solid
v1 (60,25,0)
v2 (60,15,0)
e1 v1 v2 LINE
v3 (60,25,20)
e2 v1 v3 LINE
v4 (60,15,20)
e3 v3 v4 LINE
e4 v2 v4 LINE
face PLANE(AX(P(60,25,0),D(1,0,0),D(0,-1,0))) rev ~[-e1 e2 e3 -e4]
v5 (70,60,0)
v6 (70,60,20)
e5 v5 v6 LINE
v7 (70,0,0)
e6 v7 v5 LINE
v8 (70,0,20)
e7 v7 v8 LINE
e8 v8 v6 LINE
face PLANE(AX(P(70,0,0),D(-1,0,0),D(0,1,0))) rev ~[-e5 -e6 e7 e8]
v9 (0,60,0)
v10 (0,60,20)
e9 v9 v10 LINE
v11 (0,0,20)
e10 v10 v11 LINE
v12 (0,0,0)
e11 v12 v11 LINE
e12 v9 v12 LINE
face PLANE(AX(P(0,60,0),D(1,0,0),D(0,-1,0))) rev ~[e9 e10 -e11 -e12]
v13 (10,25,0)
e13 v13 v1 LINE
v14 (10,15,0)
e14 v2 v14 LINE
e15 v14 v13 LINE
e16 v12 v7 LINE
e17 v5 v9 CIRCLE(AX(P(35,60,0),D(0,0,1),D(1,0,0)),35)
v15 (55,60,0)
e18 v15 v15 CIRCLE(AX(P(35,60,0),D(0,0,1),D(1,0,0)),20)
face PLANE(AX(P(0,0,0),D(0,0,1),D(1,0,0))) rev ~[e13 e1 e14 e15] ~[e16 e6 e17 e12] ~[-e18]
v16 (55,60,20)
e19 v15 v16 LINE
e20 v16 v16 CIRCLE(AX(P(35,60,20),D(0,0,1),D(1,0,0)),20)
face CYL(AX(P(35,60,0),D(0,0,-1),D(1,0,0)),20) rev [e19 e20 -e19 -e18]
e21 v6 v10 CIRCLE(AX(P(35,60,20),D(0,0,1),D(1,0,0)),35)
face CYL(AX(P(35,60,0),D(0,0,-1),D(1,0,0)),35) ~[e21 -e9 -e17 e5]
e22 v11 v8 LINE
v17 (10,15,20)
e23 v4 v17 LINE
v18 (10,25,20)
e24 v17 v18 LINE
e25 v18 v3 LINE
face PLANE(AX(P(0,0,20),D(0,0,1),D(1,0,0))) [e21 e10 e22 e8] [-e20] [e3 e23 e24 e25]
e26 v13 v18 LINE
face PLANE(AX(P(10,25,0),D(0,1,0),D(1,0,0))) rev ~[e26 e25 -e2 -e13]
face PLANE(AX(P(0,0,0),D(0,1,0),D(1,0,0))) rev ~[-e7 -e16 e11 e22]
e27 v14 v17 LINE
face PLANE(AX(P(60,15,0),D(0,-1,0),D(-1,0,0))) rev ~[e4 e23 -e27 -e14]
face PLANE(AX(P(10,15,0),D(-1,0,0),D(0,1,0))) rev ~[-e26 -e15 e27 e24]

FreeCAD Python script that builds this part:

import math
import FreeCAD as App
import Part
import Sketcher
from FreeCAD import Vector
Q = App.Units.Quantity


def add_polygon(sketch, points):
    """Adds a closed chain of lines whose ends are joined by coincident constraints."""
    first, n = sketch.GeometryCount, len(points)
    for a, b in zip(points, points[1:] + points[:1]):
        sketch.addGeometry(Part.LineSegment(App.Vector(*a, 0), App.Vector(*b, 0)), False)
    for i in range(n):
        sketch.addConstraint(Sketcher.Constraint("Coincident", first + i, 2, first + (i + 1) % n, 1))

doc = App.newDocument("Part")
body = doc.addObject("PartDesign::Body", "Body")

# Sketch on XY plane
sketch1 = body.newObject("Sketcher::SketchObject", "Sketch")
sketch1.AttachmentSupport = (doc.getObject("XY_Plane"), [""])
sketch1.MapMode = "FlatFace"
sketch1.addGeometry(Part.LineSegment(Vector(0, 60, 0), Vector(0, 0, 0)), False)  # 0
sketch1.addGeometry(Part.LineSegment(Vector(0, 0, 0), Vector(70, 0, 0)), False)  # 1
sketch1.addGeometry(Part.LineSegment(Vector(70, 0, 0), Vector(70, 60, 0)), False)  # 2
sketch1.addGeometry(Part.ArcOfCircle(Part.Circle(Vector(35, 60, 0), Vector(0, 0, 1), 35), math.radians(0), math.radians(180)), False)  # 3
add_polygon(sketch1, [(10, 15), (10, 25), (60, 25), (60, 15)])  # lines 4-7
sketch1.addGeometry(Part.Circle(Vector(35, 60, 0), Vector(0, 0, 1), 20), False)  # 8
sketch1.addConstraint([
    Sketcher.Constraint("Coincident", 0, 2, 1, 1),
    Sketcher.Constraint("Coincident", 1, 2, 2, 1),
    Sketcher.Constraint("Tangent", 2, 2, 3, 1),
    Sketcher.Constraint("Tangent", 3, 2, 0, 1),
    Sketcher.Constraint("Vertical", 0),
    Sketcher.Constraint("Horizontal", 1),
    Sketcher.Constraint("Vertical", 2),
    Sketcher.Constraint("Vertical", 4),
    Sketcher.Constraint("Horizontal", 5),
    Sketcher.Constraint("Vertical", 6),
    Sketcher.Constraint("Horizontal", 7),
    Sketcher.Constraint("Coincident", 0, 2, -1, 1),
    Sketcher.Constraint("Coincident", 8, 3, 3, 3),
    Sketcher.Constraint("Diameter", 8, Q("40 mm")),
    Sketcher.Constraint("Radius", 3, Q("35 mm")),
    Sketcher.Constraint("DistanceX", 5, 1, 5, 2, Q("50 mm")),
    Sketcher.Constraint("DistanceY", 0, 2, 0, 1, Q("60 mm")),
    Sketcher.Constraint("DistanceY", 4, 1, 4, 2, Q("10 mm")),
    Sketcher.Constraint("DistanceX", -1, 1, 4, 2, Q("10 mm")),
    Sketcher.Constraint("DistanceY", -1, 1, 6, 2, Q("15 mm")),
])
pad1 = body.newObject("PartDesign::Pad", "Pad")
pad1.Profile = sketch1
pad1.Length = 20

doc.recompute()
